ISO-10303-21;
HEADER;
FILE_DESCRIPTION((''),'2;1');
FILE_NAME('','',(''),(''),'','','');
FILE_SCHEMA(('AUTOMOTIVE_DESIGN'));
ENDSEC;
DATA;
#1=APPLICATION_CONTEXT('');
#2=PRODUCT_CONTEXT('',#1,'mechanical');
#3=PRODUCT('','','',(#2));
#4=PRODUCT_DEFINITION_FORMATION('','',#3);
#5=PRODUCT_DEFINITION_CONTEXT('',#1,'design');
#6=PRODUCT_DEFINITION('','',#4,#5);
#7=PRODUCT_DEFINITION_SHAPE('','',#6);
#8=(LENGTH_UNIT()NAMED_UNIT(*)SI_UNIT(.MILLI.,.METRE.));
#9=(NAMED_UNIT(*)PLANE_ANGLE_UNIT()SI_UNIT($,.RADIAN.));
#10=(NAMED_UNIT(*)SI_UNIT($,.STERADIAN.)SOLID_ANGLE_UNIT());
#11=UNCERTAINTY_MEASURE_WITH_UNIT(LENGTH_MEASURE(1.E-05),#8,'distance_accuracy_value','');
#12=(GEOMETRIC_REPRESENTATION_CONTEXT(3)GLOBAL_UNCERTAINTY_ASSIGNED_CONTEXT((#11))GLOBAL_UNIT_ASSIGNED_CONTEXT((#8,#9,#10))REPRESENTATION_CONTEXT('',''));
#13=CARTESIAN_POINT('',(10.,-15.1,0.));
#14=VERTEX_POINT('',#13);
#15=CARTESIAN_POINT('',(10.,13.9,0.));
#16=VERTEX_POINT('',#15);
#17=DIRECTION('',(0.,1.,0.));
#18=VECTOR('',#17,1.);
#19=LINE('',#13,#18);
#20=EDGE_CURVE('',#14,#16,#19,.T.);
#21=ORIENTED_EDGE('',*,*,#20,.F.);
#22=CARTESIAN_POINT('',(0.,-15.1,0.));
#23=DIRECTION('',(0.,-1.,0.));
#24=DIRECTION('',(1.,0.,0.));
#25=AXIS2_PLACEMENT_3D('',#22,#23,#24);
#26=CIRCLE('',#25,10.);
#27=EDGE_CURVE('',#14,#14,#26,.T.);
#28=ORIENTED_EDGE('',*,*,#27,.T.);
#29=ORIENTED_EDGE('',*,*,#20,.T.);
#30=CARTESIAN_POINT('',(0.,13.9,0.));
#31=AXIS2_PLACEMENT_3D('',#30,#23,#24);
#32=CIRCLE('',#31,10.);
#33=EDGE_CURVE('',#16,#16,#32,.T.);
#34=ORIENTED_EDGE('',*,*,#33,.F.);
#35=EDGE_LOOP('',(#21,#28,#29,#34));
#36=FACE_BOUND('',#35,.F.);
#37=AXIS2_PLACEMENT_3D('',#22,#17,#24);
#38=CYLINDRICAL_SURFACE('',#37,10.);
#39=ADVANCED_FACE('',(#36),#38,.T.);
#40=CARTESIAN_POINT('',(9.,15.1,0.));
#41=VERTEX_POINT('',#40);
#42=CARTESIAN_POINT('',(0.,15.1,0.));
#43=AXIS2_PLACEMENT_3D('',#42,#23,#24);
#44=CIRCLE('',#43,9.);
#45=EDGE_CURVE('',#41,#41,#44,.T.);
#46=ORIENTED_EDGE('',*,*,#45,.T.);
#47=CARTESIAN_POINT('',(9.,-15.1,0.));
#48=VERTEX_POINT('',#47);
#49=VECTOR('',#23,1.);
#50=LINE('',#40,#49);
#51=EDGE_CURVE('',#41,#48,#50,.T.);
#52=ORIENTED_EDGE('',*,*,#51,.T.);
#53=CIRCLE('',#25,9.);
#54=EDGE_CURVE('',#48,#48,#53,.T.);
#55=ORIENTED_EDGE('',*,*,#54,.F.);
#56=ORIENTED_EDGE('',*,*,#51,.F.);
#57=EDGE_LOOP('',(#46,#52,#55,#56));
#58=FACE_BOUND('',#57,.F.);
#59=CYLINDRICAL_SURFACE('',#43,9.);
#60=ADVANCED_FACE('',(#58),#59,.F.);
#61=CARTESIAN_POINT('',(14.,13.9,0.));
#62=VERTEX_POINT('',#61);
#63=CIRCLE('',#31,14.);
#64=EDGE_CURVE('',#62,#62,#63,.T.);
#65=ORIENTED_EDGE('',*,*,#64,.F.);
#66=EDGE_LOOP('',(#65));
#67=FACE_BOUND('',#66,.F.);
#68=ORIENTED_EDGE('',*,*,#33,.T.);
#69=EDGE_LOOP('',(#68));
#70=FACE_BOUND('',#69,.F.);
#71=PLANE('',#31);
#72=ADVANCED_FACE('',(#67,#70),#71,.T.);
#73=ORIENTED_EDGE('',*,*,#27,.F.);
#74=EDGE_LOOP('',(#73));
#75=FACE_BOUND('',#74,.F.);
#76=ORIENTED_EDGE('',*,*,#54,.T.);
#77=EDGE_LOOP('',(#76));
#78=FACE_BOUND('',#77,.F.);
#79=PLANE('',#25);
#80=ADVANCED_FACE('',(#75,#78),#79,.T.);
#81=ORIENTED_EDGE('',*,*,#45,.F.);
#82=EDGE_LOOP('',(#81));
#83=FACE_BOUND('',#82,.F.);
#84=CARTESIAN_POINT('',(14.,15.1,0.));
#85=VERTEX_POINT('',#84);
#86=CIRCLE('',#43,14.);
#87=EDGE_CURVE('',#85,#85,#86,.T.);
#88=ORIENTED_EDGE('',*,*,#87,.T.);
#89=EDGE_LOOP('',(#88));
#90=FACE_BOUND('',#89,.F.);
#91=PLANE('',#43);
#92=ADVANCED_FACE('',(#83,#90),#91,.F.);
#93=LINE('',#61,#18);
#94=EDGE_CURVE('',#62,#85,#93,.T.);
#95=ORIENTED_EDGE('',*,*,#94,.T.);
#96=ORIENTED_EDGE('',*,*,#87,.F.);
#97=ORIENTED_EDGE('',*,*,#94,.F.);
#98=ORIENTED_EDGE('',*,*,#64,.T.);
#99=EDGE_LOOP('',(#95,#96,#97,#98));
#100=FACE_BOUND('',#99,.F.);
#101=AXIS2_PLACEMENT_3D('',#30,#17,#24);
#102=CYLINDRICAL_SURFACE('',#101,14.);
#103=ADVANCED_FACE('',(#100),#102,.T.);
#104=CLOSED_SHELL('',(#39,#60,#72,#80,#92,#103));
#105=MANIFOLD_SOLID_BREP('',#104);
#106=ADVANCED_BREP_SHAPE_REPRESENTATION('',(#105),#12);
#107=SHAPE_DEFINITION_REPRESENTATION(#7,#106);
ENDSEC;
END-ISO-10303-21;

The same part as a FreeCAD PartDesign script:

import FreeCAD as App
import Part
import Sketcher

V = App.Vector
Q = App.Units.Quantity

doc = App.newDocument("Part")
body = doc.addObject("PartDesign::Body", "Body")

sketch1 = body.newObject("Sketcher::SketchObject", "Sketch")
sketch1.AttachmentSupport = (doc.getObject("XY_Plane"), [""])
sketch1.MapMode = "FlatFace"
sketch1.addGeometry([
    Part.LineSegment(V(9, -15.1, 0), V(10, -15.1, 0)),
    Part.LineSegment(V(10, -15.1, 0), V(10, 13.9, 0)),
    Part.LineSegment(V(10, 13.9, 0), V(14, 13.9, 0)),
    Part.LineSegment(V(14, 13.9, 0), V(14, 15.1, 0)),
    Part.LineSegment(V(14, 15.1, 0), V(9, 15.1, 0)),
    Part.LineSegment(V(9, 15.1, 0), V(9, -15.1, 0)),
], False)
sketch1.addConstraint([
    Sketcher.Constraint("Coincident", 0, 2, 1, 1),
    Sketcher.Constraint("Coincident", 1, 2, 2, 1),
    Sketcher.Constraint("Coincident", 2, 2, 3, 1),
    Sketcher.Constraint("Coincident", 3, 2, 4, 1),
    Sketcher.Constraint("Coincident", 4, 2, 5, 1),
    Sketcher.Constraint("Coincident", 5, 2, 0, 1),
    Sketcher.Constraint("Horizontal", 0),
    Sketcher.Constraint("Vertical", 1),
    Sketcher.Constraint("Horizontal", 2),
    Sketcher.Constraint("Vertical", 3),
    Sketcher.Constraint("Horizontal", 4),
    Sketcher.Constraint("Vertical", 5),
    Sketcher.Constraint("DistanceY", 1, 1, 1, 2, Q("29 mm")),
    Sketcher.Constraint("DistanceY", 5, 2, 5, 1, Q("30.2 mm")),
    Sketcher.Constraint("DistanceX", 0, 1, 0, 2, Q("1 mm")),
    Sketcher.Constraint("DistanceX", 2, 1, 2, 2, Q("4 mm")),
    Sketcher.Constraint("DistanceX", -1, 1, 0, 2, Q("10 mm")),
    Sketcher.Constraint("DistanceY", 0, 2, -1, 1, Q("15.1 mm")),
])
revolution = body.newObject("PartDesign::Revolution", "Revolution")
revolution.Profile = sketch1
revolution.ReferenceAxis = (sketch1, ["V_Axis"])
revolution.Angle = 360

doc.recompute()
